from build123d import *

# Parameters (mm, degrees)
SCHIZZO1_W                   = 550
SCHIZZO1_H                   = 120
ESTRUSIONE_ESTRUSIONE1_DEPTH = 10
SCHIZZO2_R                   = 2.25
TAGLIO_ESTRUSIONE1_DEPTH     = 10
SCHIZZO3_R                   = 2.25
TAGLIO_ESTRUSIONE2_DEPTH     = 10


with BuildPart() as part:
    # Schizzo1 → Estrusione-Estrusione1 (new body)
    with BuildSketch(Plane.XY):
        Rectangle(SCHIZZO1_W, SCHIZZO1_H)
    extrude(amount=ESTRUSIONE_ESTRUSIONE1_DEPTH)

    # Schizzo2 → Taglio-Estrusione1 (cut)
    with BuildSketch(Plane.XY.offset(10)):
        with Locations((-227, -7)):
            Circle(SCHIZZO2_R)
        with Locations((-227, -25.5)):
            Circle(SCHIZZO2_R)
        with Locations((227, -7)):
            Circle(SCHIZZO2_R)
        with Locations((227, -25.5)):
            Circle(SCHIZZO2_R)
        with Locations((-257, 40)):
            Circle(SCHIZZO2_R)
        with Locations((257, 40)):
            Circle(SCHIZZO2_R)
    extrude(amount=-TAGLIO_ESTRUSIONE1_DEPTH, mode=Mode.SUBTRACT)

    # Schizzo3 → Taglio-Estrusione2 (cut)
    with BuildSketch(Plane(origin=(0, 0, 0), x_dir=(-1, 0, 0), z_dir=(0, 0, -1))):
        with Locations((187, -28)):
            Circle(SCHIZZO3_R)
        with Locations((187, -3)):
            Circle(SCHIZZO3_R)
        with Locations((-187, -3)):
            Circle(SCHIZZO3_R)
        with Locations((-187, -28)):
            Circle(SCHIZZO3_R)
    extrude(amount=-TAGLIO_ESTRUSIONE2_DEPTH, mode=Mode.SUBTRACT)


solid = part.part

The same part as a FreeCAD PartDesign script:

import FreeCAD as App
import Part
import Sketcher

V = App.Vector

doc = App.newDocument("Part")
body = doc.addObject("PartDesign::Body", "Body")

# Sketch on XY plane
sketch1 = body.newObject("Sketcher::SketchObject", "Sketch")
sketch1.AttachmentSupport = (doc.getObject("XY_Plane"), [""])
sketch1.MapMode = "FlatFace"
sketch1.addGeometry([
    Part.LineSegment(V(-275, 60, 0), V(-275, -60, 0)),
    Part.LineSegment(V(-275, -60, 0), V(275, -60, 0)),
    Part.LineSegment(V(275, -60, 0), V(275, 60, 0)),
    Part.LineSegment(V(275, 60, 0), V(-275, 60, 0)),
], False)
sketch1.addConstraint([
    Sketcher.Constraint("Coincident", 0, 2, 1, 1),
    Sketcher.Constraint("Coincident", 1, 2, 2, 1),
    Sketcher.Constraint("Coincident", 2, 2, 3, 1),
    Sketcher.Constraint("Coincident", 3, 2, 0, 1),
    Sketcher.Constraint("Vertical", 0),
    Sketcher.Constraint("Horizontal", 1),
    Sketcher.Constraint("Vertical", 2),
    Sketcher.Constraint("Horizontal", 3),
    Sketcher.Constraint("Symmetric", 0, 2, 2, 2, -1, 1),
    Sketcher.Constraint("DistanceX", 1, 1, 1, 2, 550.0),
    Sketcher.Constraint("DistanceY", 0, 2, 0, 1, 120.0),
])
pad1 = body.newObject("PartDesign::Pad", "Pad")
pad1.Profile = sketch1
pad1.Length = 10

# Sketch on XY plane
sketch2 = body.newObject("Sketcher::SketchObject", "Sketch001")
sketch2.AttachmentSupport = (doc.getObject("XY_Plane"), [""])
sketch2.MapMode = "FlatFace"
sketch2.AttachmentOffset = App.Placement(V(0, 0, 10), App.Rotation())
sketch2.addGeometry([
    Part.Circle(V(-227, -7, 0), V(0, 0, 1), 2.2),  # 0
    Part.Circle(V(-227, -25.5, 0), V(0, 0, 1), 2.2),  # 1
    Part.Circle(V(227, -7, 0), V(0, 0, 1), 2.2),  # 2
    Part.Circle(V(227, -25.5, 0), V(0, 0, 1), 2.2),  # 3
    Part.Circle(V(-257, 40, 0), V(0, 0, 1), 2.2),  # 4
    Part.Circle(V(257, 40, 0), V(0, 0, 1), 2.2),  # 5
], False)
sketch2.addConstraint([
    Sketcher.Constraint("Equal", 0, 1),
    Sketcher.Constraint("Equal", 1, 2),
    Sketcher.Constraint("Equal", 2, 3),
    Sketcher.Constraint("Equal", 3, 4),
    Sketcher.Constraint("Equal", 4, 5),
    Sketcher.Constraint("Symmetric", 0, 3, 2, 3, -2),
    Sketcher.Constraint("Symmetric", 1, 3, 3, 3, -2),
    Sketcher.Constraint("Symmetric", 4, 3, 5, 3, -2),
    Sketcher.Constraint("Vertical", 0, 3, 1, 3),
    Sketcher.Constraint("Diameter", 0, 4.5),
    Sketcher.Constraint("DistanceX", 0, 3, -1, 1, 227.0),
    Sketcher.Constraint("DistanceY", 0, 3, -1, 1, 7.0),
    Sketcher.Constraint("DistanceX", 4, 3, -1, 1, 257.0),
    Sketcher.Constraint("DistanceY", -1, 1, 4, 3, 40.0),
    Sketcher.Constraint("DistanceY", 1, 3, -1, 1, 25.5),
])
pocket1 = body.newObject("PartDesign::Pocket", "Pocket")
pocket1.Profile = sketch2
pocket1.Length = 10

# Sketch on XY plane
sketch3 = body.newObject("Sketcher::SketchObject", "Sketch002")
sketch3.AttachmentSupport = (doc.getObject("XY_Plane"), [""])
sketch3.MapMode = "FlatFace"
sketch3.addGeometry([
    Part.Circle(V(-187, -28, 0), V(0, 0, 1), 2.2),
    Part.Circle(V(-187, -3, 0), V(0, 0, 1), 2.2),
    Part.Circle(V(187, -3, 0), V(0, 0, 1), 2.2),
    Part.Circle(V(187, -28, 0), V(0, 0, 1), 2.2),
], False)
sketch3.addConstraint([
    Sketcher.Constraint("Equal", 0, 1),
    Sketcher.Constraint("Equal", 1, 2),
    Sketcher.Constraint("Equal", 2, 3),
    Sketcher.Constraint("Symmetric", 1, 3, 2, 3, -2),
    Sketcher.Constraint("Symmetric", 0, 3, 3, 3, -2),
    Sketcher.Constraint("Vertical", 0, 3, 1, 3),
    Sketcher.Constraint("Diameter", 0, 4.5),
    Sketcher.Constraint("DistanceX", 0, 3, -1, 1, 187.0),
    Sketcher.Constraint("DistanceY", 0, 3, -1, 1, 28.0),
    Sketcher.Constraint("DistanceY", 1, 3, -1, 1, 3.0),
])
pocket2 = body.newObject("PartDesign::Pocket", "Pocket001")
pocket2.Profile = sketch3
pocket2.Length = 10
pocket2.Reversed = True

doc.recompute()
